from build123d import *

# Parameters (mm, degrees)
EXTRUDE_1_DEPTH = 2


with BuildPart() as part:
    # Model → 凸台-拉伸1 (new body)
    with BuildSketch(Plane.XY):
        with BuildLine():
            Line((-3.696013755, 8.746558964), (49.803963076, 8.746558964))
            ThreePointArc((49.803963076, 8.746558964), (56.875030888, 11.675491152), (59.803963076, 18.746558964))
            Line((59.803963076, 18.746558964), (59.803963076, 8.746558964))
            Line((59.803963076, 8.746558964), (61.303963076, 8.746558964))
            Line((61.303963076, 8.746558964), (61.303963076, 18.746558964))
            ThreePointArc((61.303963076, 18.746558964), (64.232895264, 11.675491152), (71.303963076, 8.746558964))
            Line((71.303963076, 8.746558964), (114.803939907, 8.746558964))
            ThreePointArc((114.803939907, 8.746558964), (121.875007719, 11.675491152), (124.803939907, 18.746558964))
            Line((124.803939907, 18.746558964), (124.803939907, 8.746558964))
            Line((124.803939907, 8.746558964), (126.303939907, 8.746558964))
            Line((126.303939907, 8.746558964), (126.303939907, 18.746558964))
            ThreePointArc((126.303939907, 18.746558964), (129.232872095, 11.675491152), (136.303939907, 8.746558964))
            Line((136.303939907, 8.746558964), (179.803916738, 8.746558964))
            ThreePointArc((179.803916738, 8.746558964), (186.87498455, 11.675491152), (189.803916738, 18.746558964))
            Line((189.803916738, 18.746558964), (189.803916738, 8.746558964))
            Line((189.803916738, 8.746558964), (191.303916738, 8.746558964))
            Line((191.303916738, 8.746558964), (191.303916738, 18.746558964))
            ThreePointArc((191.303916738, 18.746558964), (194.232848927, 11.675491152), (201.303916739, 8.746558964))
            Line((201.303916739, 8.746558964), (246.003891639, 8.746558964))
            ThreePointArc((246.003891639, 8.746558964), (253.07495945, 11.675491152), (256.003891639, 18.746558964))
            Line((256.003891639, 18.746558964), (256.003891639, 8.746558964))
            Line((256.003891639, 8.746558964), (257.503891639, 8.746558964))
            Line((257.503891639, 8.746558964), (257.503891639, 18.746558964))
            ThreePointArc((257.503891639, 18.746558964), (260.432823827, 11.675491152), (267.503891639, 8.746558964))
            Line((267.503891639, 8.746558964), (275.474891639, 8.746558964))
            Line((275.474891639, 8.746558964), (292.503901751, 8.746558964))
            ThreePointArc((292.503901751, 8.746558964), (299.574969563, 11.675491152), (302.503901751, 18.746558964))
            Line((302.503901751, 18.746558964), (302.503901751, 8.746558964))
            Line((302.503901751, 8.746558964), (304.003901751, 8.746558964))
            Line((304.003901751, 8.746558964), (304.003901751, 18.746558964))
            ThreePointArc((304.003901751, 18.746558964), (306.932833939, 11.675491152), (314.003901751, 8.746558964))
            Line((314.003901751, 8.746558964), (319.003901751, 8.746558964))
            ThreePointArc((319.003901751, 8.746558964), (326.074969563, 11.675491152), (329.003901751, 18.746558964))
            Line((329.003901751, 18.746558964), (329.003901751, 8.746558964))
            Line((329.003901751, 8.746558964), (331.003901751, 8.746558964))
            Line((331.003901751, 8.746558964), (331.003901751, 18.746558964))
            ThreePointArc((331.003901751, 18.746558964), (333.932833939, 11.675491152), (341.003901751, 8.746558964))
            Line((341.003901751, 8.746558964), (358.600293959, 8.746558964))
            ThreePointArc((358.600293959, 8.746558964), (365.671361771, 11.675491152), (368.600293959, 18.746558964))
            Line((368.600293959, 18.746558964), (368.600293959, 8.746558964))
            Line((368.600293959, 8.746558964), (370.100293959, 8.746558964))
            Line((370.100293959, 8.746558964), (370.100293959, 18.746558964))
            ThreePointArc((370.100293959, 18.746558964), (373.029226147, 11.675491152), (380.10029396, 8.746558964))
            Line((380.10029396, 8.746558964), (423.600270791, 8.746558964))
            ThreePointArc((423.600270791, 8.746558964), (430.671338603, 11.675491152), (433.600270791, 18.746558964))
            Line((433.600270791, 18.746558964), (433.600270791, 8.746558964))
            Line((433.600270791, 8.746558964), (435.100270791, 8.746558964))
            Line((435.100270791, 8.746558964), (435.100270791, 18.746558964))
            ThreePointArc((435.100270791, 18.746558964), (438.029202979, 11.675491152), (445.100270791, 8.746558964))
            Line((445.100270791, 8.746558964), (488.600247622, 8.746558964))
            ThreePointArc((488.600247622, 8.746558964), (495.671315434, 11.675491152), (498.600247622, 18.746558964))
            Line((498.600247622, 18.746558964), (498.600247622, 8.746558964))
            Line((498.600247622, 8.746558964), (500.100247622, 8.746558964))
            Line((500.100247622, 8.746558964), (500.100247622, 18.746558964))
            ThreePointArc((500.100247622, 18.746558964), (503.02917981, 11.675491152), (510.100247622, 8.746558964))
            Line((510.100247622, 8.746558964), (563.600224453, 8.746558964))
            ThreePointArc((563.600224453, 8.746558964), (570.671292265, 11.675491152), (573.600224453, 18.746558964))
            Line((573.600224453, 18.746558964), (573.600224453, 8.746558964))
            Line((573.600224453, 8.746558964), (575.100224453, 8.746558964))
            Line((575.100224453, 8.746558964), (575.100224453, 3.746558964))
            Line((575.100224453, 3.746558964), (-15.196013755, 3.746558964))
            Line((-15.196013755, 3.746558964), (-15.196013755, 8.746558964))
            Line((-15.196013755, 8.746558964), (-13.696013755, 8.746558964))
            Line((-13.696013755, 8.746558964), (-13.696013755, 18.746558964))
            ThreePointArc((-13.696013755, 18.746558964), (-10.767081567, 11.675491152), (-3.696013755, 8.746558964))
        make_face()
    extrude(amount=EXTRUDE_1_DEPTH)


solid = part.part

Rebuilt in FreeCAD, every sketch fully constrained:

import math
import FreeCAD as App
import Part
import Sketcher

doc = App.newDocument("Part")
body = doc.addObject("PartDesign::Body", "Body")

sketch1 = doc.addObject("Sketcher::SketchObject", "Sketch")
body.addObject(sketch1)
sketch1.AttachmentSupport = (doc.XY_Plane, [""])
sketch1.MapMode = "FlatFace"
sketch1.addGeometry([
    Part.LineSegment(App.Vector(49.8, 8.7, 0), App.Vector(-3.7, 8.7, 0)),
    Part.ArcOfCircle(Part.Circle(App.Vector(-3.7, 18.7, 0), App.Vector(0, 0, 1), 10), math.radians(180), math.radians(270)),
    Part.LineSegment(App.Vector(-13.7, 18.7, 0), App.Vector(-13.7, 8.7, 0)),
    Part.LineSegment(App.Vector(-13.7, 8.7, 0), App.Vector(-15.2, 8.7, 0)),
    Part.LineSegment(App.Vector(-15.2, 8.7, 0), App.Vector(-15.2, 3.7, 0)),
    Part.LineSegment(App.Vector(-15.2, 3.7, 0), App.Vector(575.1, 3.7, 0)),
    Part.LineSegment(App.Vector(575.1, 3.7, 0), App.Vector(575.1, 8.7, 0)),
    Part.LineSegment(App.Vector(575.1, 8.7, 0), App.Vector(573.6, 8.7, 0)),
    Part.LineSegment(App.Vector(573.6, 8.7, 0), App.Vector(573.6, 18.7, 0)),
    Part.ArcOfCircle(Part.Circle(App.Vector(563.6, 18.7, 0), App.Vector(0, 0, 1), 10), math.radians(-90), math.radians(0)),
    Part.LineSegment(App.Vector(563.6, 8.7, 0), App.Vector(510.1, 8.7, 0)),
    Part.ArcOfCircle(Part.Circle(App.Vector(510.1, 18.7, 0), App.Vector(0, 0, 1), 10), math.radians(180), math.radians(270)),
    Part.LineSegment(App.Vector(500.1, 18.7, 0), App.Vector(500.1, 8.7, 0)),
    Part.LineSegment(App.Vector(500.1, 8.7, 0), App.Vector(498.6, 8.7, 0)),
    Part.LineSegment(App.Vector(498.6, 8.7, 0), App.Vector(498.6, 18.7, 0)),
    Part.ArcOfCircle(Part.Circle(App.Vector(488.6, 18.7, 0), App.Vector(0, 0, 1), 10), math.radians(-90), math.radians(0)),
    Part.LineSegment(App.Vector(488.6, 8.7, 0), App.Vector(445.1, 8.7, 0)),
    Part.ArcOfCircle(Part.Circle(App.Vector(445.1, 18.7, 0), App.Vector(0, 0, 1), 10), math.radians(180), math.radians(270)),
    Part.LineSegment(App.Vector(435.1, 18.7, 0), App.Vector(435.1, 8.7, 0)),
    Part.LineSegment(App.Vector(435.1, 8.7, 0), App.Vector(433.6, 8.7, 0)),
    Part.LineSegment(App.Vector(433.6, 8.7, 0), App.Vector(433.6, 18.7, 0)),
    Part.ArcOfCircle(Part.Circle(App.Vector(423.6, 18.7, 0), App.Vector(0, 0, 1), 10), math.radians(-90), math.radians(0)),
    Part.LineSegment(App.Vector(423.6, 8.7, 0), App.Vector(380.1, 8.7, 0)),
    Part.ArcOfCircle(Part.Circle(App.Vector(380.1, 18.7, 0), App.Vector(0, 0, 1), 10), math.radians(180), math.radians(270)),
    Part.LineSegment(App.Vector(370.1, 18.7, 0), App.Vector(370.1, 8.7, 0)),
    Part.LineSegment(App.Vector(370.1, 8.7, 0), App.Vector(368.6, 8.7, 0)),
    Part.LineSegment(App.Vector(368.6, 8.7, 0), App.Vector(368.6, 18.7, 0)),
    Part.ArcOfCircle(Part.Circle(App.Vector(358.6, 18.7, 0), App.Vector(0, 0, 1), 10), math.radians(-90), math.radians(0)),
    Part.LineSegment(App.Vector(358.6, 8.7, 0), App.Vector(341, 8.7, 0)),
    Part.ArcOfCircle(Part.Circle(App.Vector(341, 18.7, 0), App.Vector(0, 0, 1), 10), math.radians(180), math.radians(270)),
    Part.LineSegment(App.Vector(331, 18.7, 0), App.Vector(331, 8.7, 0)),
    Part.LineSegment(App.Vector(331, 8.7, 0), App.Vector(329, 8.7, 0)),
    Part.LineSegment(App.Vector(329, 8.7, 0), App.Vector(329, 18.7, 0)),
    Part.ArcOfCircle(Part.Circle(App.Vector(319, 18.7, 0), App.Vector(0, 0, 1), 10), math.radians(-90), math.radians(0)),
    Part.LineSegment(App.Vector(319, 8.7, 0), App.Vector(314, 8.7, 0)),
    Part.ArcOfCircle(Part.Circle(App.Vector(314, 18.7, 0), App.Vector(0, 0, 1), 10), math.radians(180), math.radians(270)),
    Part.LineSegment(App.Vector(304, 18.7, 0), App.Vector(304, 8.7, 0)),
    Part.LineSegment(App.Vector(304, 8.7, 0), App.Vector(302.5, 8.7, 0)),
    Part.LineSegment(App.Vector(302.5, 8.7, 0), App.Vector(302.5, 18.7, 0)),
    Part.ArcOfCircle(Part.Circle(App.Vector(292.5, 18.7, 0), App.Vector(0, 0, 1), 10), math.radians(-90), math.radians(0)),
    Part.LineSegment(App.Vector(292.5, 8.7, 0), App.Vector(267.5, 8.7, 0)),
    Part.ArcOfCircle(Part.Circle(App.Vector(267.5, 18.7, 0), App.Vector(0, 0, 1), 10), math.radians(180), math.radians(270)),
    Part.LineSegment(App.Vector(257.5, 18.7, 0), App.Vector(257.5, 8.7, 0)),
    Part.LineSegment(App.Vector(257.5, 8.7, 0), App.Vector(256, 8.7, 0)),
    Part.LineSegment(App.Vector(256, 8.7, 0), App.Vector(256, 18.7, 0)),
    Part.ArcOfCircle(Part.Circle(App.Vector(246, 18.7, 0), App.Vector(0, 0, 1), 10), math.radians(-90), math.radians(0)),
    Part.LineSegment(App.Vector(246, 8.7, 0), App.Vector(201.3, 8.7, 0)),
    Part.ArcOfCircle(Part.Circle(App.Vector(201.3, 18.7, 0), App.Vector(0, 0, 1), 10), math.radians(-180), math.radians(-90)),
    Part.LineSegment(App.Vector(191.3, 18.7, 0), App.Vector(191.3, 8.7, 0)),
    Part.LineSegment(App.Vector(191.3, 8.7, 0), App.Vector(189.8, 8.7, 0)),
    Part.LineSegment(App.Vector(189.8, 8.7, 0), App.Vector(189.8, 18.7, 0)),
    Part.ArcOfCircle(Part.Circle(App.Vector(179.8, 18.7, 0), App.Vector(0, 0, 1), 10), math.radians(-90), math.radians(0)),
    Part.LineSegment(App.Vector(179.8, 8.7, 0), App.Vector(136.3, 8.7, 0)),
    Part.ArcOfCircle(Part.Circle(App.Vector(136.3, 18.7, 0), App.Vector(0, 0, 1), 10), math.radians(180), math.radians(270)),
    Part.LineSegment(App.Vector(126.3, 18.7, 0), App.Vector(126.3, 8.7, 0)),
    Part.LineSegment(App.Vector(126.3, 8.7, 0), App.Vector(124.8, 8.7, 0)),
    Part.LineSegment(App.Vector(124.8, 8.7, 0), App.Vector(124.8, 18.7, 0)),
    Part.ArcOfCircle(Part.Circle(App.Vector(114.8, 18.7, 0), App.Vector(0, 0, 1), 10), math.radians(-90), math.radians(0)),
    Part.LineSegment(App.Vector(114.8, 8.7, 0), App.Vector(71.3, 8.7, 0)),
    Part.ArcOfCircle(Part.Circle(App.Vector(71.3, 18.7, 0), App.Vector(0, 0, 1), 10), math.radians(180), math.radians(270)),
    Part.LineSegment(App.Vector(61.3, 18.7, 0), App.Vector(61.3, 8.7, 0)),
    Part.LineSegment(App.Vector(61.3, 8.7, 0), App.Vector(59.8, 8.7, 0)),
    Part.LineSegment(App.Vector(59.8, 8.7, 0), App.Vector(59.8, 18.7, 0)),
    Part.ArcOfCircle(Part.Circle(App.Vector(49.8, 18.7, 0), App.Vector(0, 0, 1), 10), math.radians(-90), math.radians(0)),
], False)
sketch1.addConstraint([
    Sketcher.Constraint("Tangent", 0, 2, 1, 2),
    Sketcher.Constraint("Tangent", 1, 1, 2, 1),
    Sketcher.Constraint("Coincident", 2, 2, 3, 1),
    Sketcher.Constraint("Coincident", 3, 2, 4, 1),
    Sketcher.Constraint("Coincident", 4, 2, 5, 1),
    Sketcher.Constraint("Coincident", 5, 2, 6, 1),
    Sketcher.Constraint("Coincident", 6, 2, 7, 1),
    Sketcher.Constraint("Coincident", 7, 2, 8, 1),
    Sketcher.Constraint("Tangent", 8, 2, 9, 2),
    Sketcher.Constraint("Tangent", 9, 1, 10, 1),
    Sketcher.Constraint("Tangent", 10, 2, 11, 2),
    Sketcher.Constraint("Tangent", 11, 1, 12, 1),
    Sketcher.Constraint("Coincident", 12, 2, 13, 1),
    Sketcher.Constraint("Coincident", 13, 2, 14, 1),
    Sketcher.Constraint("Tangent", 14, 2, 15, 2),
    Sketcher.Constraint("Tangent", 15, 1, 16, 1),
    Sketcher.Constraint("Tangent", 16, 2, 17, 2),
    Sketcher.Constraint("Tangent", 17, 1, 18, 1),
    Sketcher.Constraint("Coincident", 18, 2, 19, 1),
    Sketcher.Constraint("Coincident", 19, 2, 20, 1),
    Sketcher.Constraint("Tangent", 20, 2, 21, 2),
    Sketcher.Constraint("Tangent", 21, 1, 22, 1),
    Sketcher.Constraint("Tangent", 22, 2, 23, 2),
    Sketcher.Constraint("Tangent", 23, 1, 24, 1),
    Sketcher.Constraint("Coincident", 24, 2, 25, 1),
    Sketcher.Constraint("Coincident", 25, 2, 26, 1),
    Sketcher.Constraint("Tangent", 26, 2, 27, 2),
    Sketcher.Constraint("Tangent", 27, 1, 28, 1),
    Sketcher.Constraint("Tangent", 28, 2, 29, 2),
    Sketcher.Constraint("Tangent", 29, 1, 30, 1),
    Sketcher.Constraint("Coincident", 30, 2, 31, 1),
    Sketcher.Constraint("Coincident", 31, 2, 32, 1),
    Sketcher.Constraint("Tangent", 32, 2, 33, 2),
    Sketcher.Constraint("Tangent", 33, 1, 34, 1),
    Sketcher.Constraint("Tangent", 34, 2, 35, 2),
    Sketcher.Constraint("Tangent", 35, 1, 36, 1),
    Sketcher.Constraint("Coincident", 36, 2, 37, 1),
    Sketcher.Constraint("Coincident", 37, 2, 38, 1),
    Sketcher.Constraint("Tangent", 38, 2, 39, 2),
    Sketcher.Constraint("Tangent", 39, 1, 40, 1),
    Sketcher.Constraint("Tangent", 40, 2, 41, 2),
    Sketcher.Constraint("Tangent", 41, 1, 42, 1),
    Sketcher.Constraint("Coincident", 42, 2, 43, 1),
    Sketcher.Constraint("Coincident", 43, 2, 44, 1),
    Sketcher.Constraint("Tangent", 44, 2, 45, 2),
    Sketcher.Constraint("Tangent", 45, 1, 46, 1),
    Sketcher.Constraint("Tangent", 46, 2, 47, 2),
    Sketcher.Constraint("Tangent", 47, 1, 48, 1),
    Sketcher.Constraint("Coincident", 48, 2, 49, 1),
    Sketcher.Constraint("Coincident", 49, 2, 50, 1),
    Sketcher.Constraint("Tangent", 50, 2, 51, 2),
    Sketcher.Constraint("Tangent", 51, 1, 52, 1),
    Sketcher.Constraint("Tangent", 52, 2, 53, 2),
    Sketcher.Constraint("Tangent", 53, 1, 54, 1),
    Sketcher.Constraint("Coincident", 54, 2, 55, 1),
    Sketcher.Constraint("Coincident", 55, 2, 56, 1),
    Sketcher.Constraint("Tangent", 56, 2, 57, 2),
    Sketcher.Constraint("Tangent", 57, 1, 58, 1),
    Sketcher.Constraint("Tangent", 58, 2, 59, 2),
    Sketcher.Constraint("Tangent", 59, 1, 60, 1),
    Sketcher.Constraint("Coincident", 60, 2, 61, 1),
    Sketcher.Constraint("Coincident", 61, 2, 62, 1),
    Sketcher.Constraint("Tangent", 62, 2, 63, 2),
    Sketcher.Constraint("Tangent", 63, 1, 0, 1),
    Sketcher.Constraint("Horizontal", 0),
    Sketcher.Constraint("Vertical", 2),
    Sketcher.Constraint("Horizontal", 3),
    Sketcher.Constraint("Vertical", 4),
    Sketcher.Constraint("Horizontal", 5),
    Sketcher.Constraint("Vertical", 6),
    Sketcher.Constraint("Horizontal", 7),
    Sketcher.Constraint("Vertical", 8),
    Sketcher.Constraint("Horizontal", 10),
    Sketcher.Constraint("Vertical", 12),
    Sketcher.Constraint("Horizontal", 13),
    Sketcher.Constraint("Vertical", 14),
    Sketcher.Constraint("Horizontal", 16),
    Sketcher.Constraint("Vertical", 18),
    Sketcher.Constraint("Horizontal", 19),
    Sketcher.Constraint("Vertical", 20),
    Sketcher.Constraint("Horizontal", 22),
    Sketcher.Constraint("Vertical", 24),
    Sketcher.Constraint("Horizontal", 25),
    Sketcher.Constraint("Vertical", 26),
    Sketcher.Constraint("Horizontal", 28),
    Sketcher.Constraint("Vertical", 30),
    Sketcher.Constraint("Horizontal", 31),
    Sketcher.Constraint("Vertical", 32),
    Sketcher.Constraint("Horizontal", 34),
    Sketcher.Constraint("Vertical", 36),
    Sketcher.Constraint("Horizontal", 37),
    Sketcher.Constraint("Vertical", 38),
    Sketcher.Constraint("Horizontal", 40),
    Sketcher.Constraint("Vertical", 42),
    Sketcher.Constraint("Horizontal", 43),
    Sketcher.Constraint("Vertical", 44),
    Sketcher.Constraint("Horizontal", 46),
    Sketcher.Constraint("Vertical", 48),
    Sketcher.Constraint("Horizontal", 49),
    Sketcher.Constraint("Vertical", 50),
    Sketcher.Constraint("Horizontal", 52),
    Sketcher.Constraint("Vertical", 54),
    Sketcher.Constraint("Horizontal", 55),
    Sketcher.Constraint("Vertical", 56),
    Sketcher.Constraint("Horizontal", 58),
    Sketcher.Constraint("Vertical", 60),
    Sketcher.Constraint("Horizontal", 61),
    Sketcher.Constraint("Vertical", 62),
    Sketcher.Constraint("Equal", 1, 9),
    Sketcher.Constraint("Equal", 9, 11),
    Sketcher.Constraint("Equal", 11, 15),
    Sketcher.Constraint("Equal", 15, 17),
    Sketcher.Constraint("Equal", 17, 21),
    Sketcher.Constraint("Equal", 21, 23),
    Sketcher.Constraint("Equal", 23, 27),
    Sketcher.Constraint("Equal", 27, 29),
    Sketcher.Constraint("Equal", 29, 33),
    Sketcher.Constraint("Equal", 33, 35),
    Sketcher.Constraint("Equal", 35, 39),
    Sketcher.Constraint("Equal", 39, 41),
    Sketcher.Constraint("Equal", 41, 45),
    Sketcher.Constraint("Equal", 45, 47),
    Sketcher.Constraint("Equal", 47, 51),
    Sketcher.Constraint("Equal", 51, 53),
    Sketcher.Constraint("Equal", 53, 57),
    Sketcher.Constraint("Equal", 57, 59),
    Sketcher.Constraint("Equal", 59, 63),
    Sketcher.Constraint("Horizontal", 1, 3, 9, 3),
    Sketcher.Constraint("Horizontal", 11, 3, 15, 3),
    Sketcher.Constraint("Horizontal", 17, 3, 21, 3),
    Sketcher.Constraint("Horizontal", 23, 3, 27, 3),
    Sketcher.Constraint("Horizontal", 29, 3, 33, 3),
    Sketcher.Constraint("Horizontal", 35, 3, 39, 3),
    Sketcher.Constraint("Horizontal", 41, 3, 45, 3),
    Sketcher.Constraint("Horizontal", 47, 3, 51, 3),
    Sketcher.Constraint("Horizontal", 53, 3, 57, 3),
    Sketcher.Constraint("Horizontal", 0, 2, 2, 2),
    Sketcher.Constraint("Horizontal", 3, 2, 6, 2),
    Sketcher.Constraint("Horizontal", 10, 2, 12, 2),
    Sketcher.Constraint("Horizontal", 16, 2, 18, 2),
    Sketcher.Constraint("Horizontal", 22, 2, 24, 2),
    Sketcher.Constraint("Horizontal", 28, 2, 30, 2),
    Sketcher.Constraint("Horizontal", 34, 2, 36, 2),
    Sketcher.Constraint("Horizontal", 40, 2, 42, 2),
    Sketcher.Constraint("Horizontal", 46, 2, 48, 2),
    Sketcher.Constraint("Horizontal", 52, 2, 54, 2),
    Sketcher.Constraint("Horizontal", 58, 2, 60, 2),
    Sketcher.Constraint("Equal", 3, 7),
    Sketcher.Constraint("Equal", 0, 10),
    Sketcher.Constraint("Equal", 7, 13),
    Sketcher.Constraint("Equal", 13, 19),
    Sketcher.Constraint("Equal", 16, 22),
    Sketcher.Constraint("Equal", 19, 25),
    Sketcher.Constraint("Equal", 25, 37),
    Sketcher.Constraint("Equal", 37, 43),
    Sketcher.Constraint("Equal", 43, 49),
    Sketcher.Constraint("Equal", 22, 52),
    Sketcher.Constraint("Equal", 49, 55),
    Sketcher.Constraint("Equal", 52, 58),
    Sketcher.Constraint("Equal", 55, 61),
    Sketcher.Constraint("Equal", 34, 4),
    Sketcher.Constraint("Radius", 1, 10.0),
    Sketcher.Constraint("DistanceX", 31, 2, 31, 1, 2.0),
    Sketcher.Constraint("DistanceX", 34, 2, 34, 1, 5.0),
    Sketcher.Constraint("DistanceX", 3, 2, 3, 1, 1.5),
    Sketcher.Constraint("DistanceX", 5, 1, 5, 2, 590.296238),
    Sketcher.Constraint("DistanceX", 40, 2, 40, 1, 25.00001),
    Sketcher.Constraint("DistanceX", -1, 1, 29, 3, 341.003902),
    Sketcher.Constraint("DistanceX", 0, 2, 0, 1, 53.499977),
    Sketcher.Constraint("DistanceX", 16, 2, 16, 1, 43.499977),
    Sketcher.Constraint("DistanceX", 28, 2, 28, 1, 17.596392),
    Sketcher.Constraint("DistanceY", -1, 1, 1, 3, 18.746559),
])
pad1 = doc.addObject("PartDesign::Pad", "Pad")
body.addObject(pad1)
pad1.Profile = sketch1
pad1.Length = 2

doc.recompute()
